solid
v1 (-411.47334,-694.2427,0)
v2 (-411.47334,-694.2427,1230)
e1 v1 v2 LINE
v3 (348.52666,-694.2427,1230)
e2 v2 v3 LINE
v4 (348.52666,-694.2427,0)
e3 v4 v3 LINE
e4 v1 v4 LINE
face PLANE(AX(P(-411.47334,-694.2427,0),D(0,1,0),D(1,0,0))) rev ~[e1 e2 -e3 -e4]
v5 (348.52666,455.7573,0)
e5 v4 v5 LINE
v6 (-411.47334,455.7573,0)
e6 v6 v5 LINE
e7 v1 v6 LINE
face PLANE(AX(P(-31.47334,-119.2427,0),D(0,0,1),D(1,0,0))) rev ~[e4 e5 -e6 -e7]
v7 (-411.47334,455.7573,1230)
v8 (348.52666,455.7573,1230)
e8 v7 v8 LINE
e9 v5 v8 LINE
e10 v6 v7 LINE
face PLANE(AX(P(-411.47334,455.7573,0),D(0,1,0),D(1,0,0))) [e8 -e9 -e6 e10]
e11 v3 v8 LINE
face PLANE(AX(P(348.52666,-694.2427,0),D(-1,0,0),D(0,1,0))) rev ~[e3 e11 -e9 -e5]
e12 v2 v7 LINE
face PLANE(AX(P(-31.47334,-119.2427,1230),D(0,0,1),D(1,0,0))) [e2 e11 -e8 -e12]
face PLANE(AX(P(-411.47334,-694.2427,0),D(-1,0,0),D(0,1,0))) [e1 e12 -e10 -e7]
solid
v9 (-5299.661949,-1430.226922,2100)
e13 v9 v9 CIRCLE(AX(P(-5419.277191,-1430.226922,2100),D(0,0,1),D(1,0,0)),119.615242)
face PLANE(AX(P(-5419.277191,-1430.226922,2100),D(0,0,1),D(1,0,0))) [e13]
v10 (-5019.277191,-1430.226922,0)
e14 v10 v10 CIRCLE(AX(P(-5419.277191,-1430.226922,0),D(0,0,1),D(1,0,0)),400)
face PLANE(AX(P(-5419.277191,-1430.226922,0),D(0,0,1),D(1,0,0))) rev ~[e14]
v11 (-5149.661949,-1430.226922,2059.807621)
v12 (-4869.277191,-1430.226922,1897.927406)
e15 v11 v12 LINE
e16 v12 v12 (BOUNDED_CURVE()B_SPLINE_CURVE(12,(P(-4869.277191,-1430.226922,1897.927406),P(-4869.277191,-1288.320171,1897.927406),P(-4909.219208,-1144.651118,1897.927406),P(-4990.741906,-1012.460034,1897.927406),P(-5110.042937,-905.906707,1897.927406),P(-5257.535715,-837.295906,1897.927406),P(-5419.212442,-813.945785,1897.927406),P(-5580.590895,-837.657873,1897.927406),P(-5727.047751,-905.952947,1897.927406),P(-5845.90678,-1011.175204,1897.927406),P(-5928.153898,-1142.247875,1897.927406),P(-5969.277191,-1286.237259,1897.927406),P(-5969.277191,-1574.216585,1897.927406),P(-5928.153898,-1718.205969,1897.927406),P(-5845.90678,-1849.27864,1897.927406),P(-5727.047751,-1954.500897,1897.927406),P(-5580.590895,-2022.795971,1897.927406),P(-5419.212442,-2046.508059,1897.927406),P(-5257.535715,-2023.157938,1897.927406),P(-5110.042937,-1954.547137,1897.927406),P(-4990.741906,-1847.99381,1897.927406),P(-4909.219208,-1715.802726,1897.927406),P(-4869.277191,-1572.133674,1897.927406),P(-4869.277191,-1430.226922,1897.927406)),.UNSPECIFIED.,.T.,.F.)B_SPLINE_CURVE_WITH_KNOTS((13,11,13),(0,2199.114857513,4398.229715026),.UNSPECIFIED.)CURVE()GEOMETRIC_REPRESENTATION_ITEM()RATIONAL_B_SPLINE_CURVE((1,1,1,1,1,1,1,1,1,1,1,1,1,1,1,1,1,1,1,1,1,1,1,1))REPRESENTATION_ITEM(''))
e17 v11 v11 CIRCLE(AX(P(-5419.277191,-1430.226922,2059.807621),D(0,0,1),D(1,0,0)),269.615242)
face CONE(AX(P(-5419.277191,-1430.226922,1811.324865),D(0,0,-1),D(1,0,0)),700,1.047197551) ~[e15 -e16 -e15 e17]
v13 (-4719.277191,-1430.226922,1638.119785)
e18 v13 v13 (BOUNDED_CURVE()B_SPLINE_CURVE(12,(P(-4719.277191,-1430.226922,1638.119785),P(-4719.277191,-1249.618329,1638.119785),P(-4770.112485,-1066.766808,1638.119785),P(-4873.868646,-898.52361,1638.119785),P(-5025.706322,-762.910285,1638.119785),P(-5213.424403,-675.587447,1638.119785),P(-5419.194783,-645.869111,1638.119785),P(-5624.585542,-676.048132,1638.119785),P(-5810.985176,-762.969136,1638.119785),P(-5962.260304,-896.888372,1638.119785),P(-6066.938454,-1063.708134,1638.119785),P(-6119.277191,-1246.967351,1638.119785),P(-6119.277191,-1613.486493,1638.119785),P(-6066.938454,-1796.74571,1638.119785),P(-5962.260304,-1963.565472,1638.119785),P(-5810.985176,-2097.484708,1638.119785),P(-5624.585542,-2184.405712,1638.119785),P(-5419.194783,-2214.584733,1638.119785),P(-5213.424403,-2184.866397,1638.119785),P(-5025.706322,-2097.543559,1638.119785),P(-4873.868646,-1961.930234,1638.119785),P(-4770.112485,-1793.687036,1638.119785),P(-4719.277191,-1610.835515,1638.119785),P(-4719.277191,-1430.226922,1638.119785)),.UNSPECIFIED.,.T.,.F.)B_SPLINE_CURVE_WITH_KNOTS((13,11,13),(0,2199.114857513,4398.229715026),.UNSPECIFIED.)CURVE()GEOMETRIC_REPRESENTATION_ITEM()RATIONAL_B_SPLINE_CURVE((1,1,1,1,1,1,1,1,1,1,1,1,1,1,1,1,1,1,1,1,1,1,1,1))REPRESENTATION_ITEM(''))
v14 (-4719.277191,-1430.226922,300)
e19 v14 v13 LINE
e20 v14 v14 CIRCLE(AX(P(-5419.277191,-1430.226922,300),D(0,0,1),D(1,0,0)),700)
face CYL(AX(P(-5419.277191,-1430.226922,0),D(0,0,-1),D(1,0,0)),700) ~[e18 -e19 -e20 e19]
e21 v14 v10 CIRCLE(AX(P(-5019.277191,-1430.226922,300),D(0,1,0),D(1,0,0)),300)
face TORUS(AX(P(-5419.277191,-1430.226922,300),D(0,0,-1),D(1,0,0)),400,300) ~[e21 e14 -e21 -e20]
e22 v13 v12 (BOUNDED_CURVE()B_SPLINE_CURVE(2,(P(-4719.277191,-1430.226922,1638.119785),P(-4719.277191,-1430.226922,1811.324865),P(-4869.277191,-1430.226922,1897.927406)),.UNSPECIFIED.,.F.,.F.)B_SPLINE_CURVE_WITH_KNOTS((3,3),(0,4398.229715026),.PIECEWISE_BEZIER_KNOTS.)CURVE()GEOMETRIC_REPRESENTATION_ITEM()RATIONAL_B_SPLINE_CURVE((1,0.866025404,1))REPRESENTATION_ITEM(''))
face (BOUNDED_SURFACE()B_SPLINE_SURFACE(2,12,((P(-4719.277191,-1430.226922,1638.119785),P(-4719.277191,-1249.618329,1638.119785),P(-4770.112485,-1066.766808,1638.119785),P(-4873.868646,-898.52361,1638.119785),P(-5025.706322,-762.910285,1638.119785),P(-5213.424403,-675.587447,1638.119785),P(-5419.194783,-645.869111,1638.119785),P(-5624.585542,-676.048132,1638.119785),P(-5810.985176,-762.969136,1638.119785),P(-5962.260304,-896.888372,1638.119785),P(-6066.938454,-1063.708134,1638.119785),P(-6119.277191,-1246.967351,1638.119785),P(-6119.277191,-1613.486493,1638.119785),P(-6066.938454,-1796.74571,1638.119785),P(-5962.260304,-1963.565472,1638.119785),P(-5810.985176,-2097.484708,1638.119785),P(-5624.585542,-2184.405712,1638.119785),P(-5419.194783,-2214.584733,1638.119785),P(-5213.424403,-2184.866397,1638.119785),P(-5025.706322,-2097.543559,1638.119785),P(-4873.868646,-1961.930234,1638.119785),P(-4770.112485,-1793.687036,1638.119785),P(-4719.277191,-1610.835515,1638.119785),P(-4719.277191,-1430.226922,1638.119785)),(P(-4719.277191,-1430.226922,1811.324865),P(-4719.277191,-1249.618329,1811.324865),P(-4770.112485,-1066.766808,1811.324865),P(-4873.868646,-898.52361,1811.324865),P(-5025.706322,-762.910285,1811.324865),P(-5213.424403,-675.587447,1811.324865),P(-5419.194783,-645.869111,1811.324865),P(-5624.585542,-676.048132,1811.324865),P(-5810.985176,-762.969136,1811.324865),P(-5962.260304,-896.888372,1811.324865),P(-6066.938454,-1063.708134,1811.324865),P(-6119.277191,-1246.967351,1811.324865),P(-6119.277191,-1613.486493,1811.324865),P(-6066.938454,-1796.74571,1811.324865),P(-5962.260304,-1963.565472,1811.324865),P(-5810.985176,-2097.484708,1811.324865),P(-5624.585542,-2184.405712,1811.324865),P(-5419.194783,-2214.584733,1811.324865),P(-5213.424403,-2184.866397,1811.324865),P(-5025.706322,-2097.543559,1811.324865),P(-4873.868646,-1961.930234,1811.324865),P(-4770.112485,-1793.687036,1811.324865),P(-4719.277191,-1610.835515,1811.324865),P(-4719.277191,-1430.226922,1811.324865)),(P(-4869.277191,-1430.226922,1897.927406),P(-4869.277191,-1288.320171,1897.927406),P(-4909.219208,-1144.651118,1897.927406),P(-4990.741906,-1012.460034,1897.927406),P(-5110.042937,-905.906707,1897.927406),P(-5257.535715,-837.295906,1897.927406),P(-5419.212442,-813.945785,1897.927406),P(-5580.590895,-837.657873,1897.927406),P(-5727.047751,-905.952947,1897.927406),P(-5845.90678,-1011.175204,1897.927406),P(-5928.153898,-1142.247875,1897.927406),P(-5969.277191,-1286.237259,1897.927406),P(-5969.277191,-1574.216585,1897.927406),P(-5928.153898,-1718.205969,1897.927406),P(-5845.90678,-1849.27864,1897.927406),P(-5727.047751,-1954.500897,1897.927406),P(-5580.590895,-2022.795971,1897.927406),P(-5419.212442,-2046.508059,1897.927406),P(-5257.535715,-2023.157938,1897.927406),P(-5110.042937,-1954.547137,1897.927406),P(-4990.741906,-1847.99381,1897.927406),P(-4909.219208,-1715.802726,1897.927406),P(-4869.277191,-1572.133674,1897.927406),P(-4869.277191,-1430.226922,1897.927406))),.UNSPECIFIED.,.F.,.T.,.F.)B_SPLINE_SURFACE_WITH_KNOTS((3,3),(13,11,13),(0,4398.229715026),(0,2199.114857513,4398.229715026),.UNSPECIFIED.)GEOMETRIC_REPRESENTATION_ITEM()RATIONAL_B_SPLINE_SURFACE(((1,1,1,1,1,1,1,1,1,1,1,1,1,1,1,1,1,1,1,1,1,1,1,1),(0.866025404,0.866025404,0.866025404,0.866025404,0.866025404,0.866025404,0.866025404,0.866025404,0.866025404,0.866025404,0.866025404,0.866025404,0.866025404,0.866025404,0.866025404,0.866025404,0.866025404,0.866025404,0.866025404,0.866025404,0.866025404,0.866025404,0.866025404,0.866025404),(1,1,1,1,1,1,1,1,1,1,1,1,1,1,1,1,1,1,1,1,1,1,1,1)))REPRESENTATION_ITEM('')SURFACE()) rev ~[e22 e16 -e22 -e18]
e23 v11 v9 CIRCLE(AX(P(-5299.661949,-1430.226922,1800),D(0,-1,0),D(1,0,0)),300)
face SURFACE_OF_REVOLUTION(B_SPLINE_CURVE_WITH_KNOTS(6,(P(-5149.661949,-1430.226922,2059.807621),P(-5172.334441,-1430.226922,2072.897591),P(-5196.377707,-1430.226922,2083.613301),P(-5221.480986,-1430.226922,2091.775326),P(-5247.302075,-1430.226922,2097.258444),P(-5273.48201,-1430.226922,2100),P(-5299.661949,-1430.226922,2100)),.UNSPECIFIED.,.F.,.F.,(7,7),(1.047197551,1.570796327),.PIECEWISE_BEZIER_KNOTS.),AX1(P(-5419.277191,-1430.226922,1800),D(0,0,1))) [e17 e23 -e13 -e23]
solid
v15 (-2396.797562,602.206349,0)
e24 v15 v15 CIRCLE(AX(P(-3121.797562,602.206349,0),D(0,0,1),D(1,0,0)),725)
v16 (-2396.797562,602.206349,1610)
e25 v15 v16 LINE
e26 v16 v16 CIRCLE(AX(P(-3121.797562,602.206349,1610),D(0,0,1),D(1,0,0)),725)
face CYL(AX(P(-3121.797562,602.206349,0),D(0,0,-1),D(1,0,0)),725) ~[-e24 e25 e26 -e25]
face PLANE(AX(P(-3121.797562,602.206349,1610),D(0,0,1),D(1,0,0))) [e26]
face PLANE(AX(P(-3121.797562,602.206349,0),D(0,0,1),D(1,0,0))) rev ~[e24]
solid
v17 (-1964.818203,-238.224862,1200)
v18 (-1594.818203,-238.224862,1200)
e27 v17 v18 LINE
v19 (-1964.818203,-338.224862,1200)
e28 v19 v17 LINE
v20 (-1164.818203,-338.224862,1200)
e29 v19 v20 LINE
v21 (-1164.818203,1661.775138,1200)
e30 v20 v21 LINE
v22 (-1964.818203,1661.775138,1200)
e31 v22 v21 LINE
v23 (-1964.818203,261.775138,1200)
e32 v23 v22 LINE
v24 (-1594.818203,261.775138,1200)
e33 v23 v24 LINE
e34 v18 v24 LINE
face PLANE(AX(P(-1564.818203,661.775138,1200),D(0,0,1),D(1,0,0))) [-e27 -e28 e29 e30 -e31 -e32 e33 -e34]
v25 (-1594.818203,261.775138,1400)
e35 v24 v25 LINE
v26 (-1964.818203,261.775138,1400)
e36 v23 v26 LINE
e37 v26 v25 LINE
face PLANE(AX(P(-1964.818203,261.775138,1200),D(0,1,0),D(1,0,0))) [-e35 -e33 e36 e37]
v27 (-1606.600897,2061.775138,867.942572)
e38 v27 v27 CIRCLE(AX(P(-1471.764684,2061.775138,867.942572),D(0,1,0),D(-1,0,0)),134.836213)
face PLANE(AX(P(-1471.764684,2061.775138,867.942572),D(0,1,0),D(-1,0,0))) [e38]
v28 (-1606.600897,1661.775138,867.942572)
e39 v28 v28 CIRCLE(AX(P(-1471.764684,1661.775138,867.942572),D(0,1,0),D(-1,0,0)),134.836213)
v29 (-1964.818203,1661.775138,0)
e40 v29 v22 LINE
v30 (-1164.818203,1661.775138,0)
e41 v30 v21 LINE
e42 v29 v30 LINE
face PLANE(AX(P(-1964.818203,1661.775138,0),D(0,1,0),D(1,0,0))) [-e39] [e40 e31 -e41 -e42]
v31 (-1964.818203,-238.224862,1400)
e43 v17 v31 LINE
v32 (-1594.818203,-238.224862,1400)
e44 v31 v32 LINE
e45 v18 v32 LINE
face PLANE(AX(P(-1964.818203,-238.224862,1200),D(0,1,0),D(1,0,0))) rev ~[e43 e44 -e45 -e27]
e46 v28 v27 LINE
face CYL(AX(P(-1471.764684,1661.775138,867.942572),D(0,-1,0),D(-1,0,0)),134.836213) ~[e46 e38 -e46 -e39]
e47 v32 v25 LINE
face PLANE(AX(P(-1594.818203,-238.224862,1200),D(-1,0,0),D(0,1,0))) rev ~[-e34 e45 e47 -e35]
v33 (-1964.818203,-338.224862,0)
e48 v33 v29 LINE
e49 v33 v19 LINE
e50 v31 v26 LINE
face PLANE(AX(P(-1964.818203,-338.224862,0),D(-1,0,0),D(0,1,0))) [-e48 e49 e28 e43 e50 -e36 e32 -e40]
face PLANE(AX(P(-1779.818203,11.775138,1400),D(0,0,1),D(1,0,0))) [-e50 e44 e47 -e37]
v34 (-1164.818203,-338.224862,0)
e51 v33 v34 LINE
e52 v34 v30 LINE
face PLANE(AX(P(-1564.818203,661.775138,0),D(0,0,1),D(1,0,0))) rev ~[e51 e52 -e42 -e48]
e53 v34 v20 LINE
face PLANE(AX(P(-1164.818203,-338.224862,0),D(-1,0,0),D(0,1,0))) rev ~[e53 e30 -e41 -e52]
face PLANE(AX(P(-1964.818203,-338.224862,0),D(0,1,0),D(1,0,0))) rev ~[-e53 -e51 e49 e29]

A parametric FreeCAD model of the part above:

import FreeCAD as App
import Part
import Sketcher
Q = App.Units.Quantity


def edges_at(feature, points):
    """Names of the edges that pass closest to the given points."""
    edges = feature.Shape.Edges
    near = lambda p: min(range(len(edges)), key=lambda i: edges[i].distToShape(Part.Vertex(*p))[0])
    return sorted({f"Edge{near(p) + 1}" for p in points})


def add_polygon(sketch, points):
    """Adds a closed chain of lines whose ends are joined by coincident constraints."""
    first, n = sketch.GeometryCount, len(points)
    for a, b in zip(points, points[1:] + points[:1]):
        sketch.addGeometry(Part.LineSegment(App.Vector(*a, 0), App.Vector(*b, 0)), False)
    for i in range(n):
        sketch.addConstraint(Sketcher.Constraint("Coincident", first + i, 2, first + (i + 1) % n, 1))

doc = App.newDocument("Part")
body = doc.addObject("PartDesign::Body", "Body")

# Sketch on XY plane
sketch1 = body.newObject("Sketcher::SketchObject", "Sketch")
sketch1.AttachmentSupport = (doc.getObject("XY_Plane"), [""])
sketch1.MapMode = "FlatFace"
add_polygon(sketch1, [(-411, 456), (-411, -694), (349, -694), (349, 456)])  # lines 0-3
sketch1.addConstraint([
    Sketcher.Constraint("Vertical", 0),
    Sketcher.Constraint("Horizontal", 1),
    Sketcher.Constraint("Vertical", 2),
    Sketcher.Constraint("Horizontal", 3),
    Sketcher.Constraint("DistanceX", 1, 1, 1, 2, Q("760 mm")),
    Sketcher.Constraint("DistanceY", 0, 2, 0, 1, Q("1150 mm")),
    Sketcher.Constraint("DistanceY", 0, 2, -1, 1, Q("694.2427 mm")),
    Sketcher.Constraint("DistanceX", 0, 2, -1, 1, Q("411.47334 mm")),
])
pad1 = body.newObject("PartDesign::Pad", "Pad")
pad1.Profile = sketch1
pad1.Length = 1230
body2 = doc.addObject("PartDesign::Body", "Body001")

# Sketch on XY plane
sketch2 = body2.newObject("Sketcher::SketchObject", "Sketch001")
sketch2.AttachmentSupport = (doc.getObject("XY_Plane001"), [""])
sketch2.MapMode = "FlatFace"
sketch2.addGeometry(Part.Circle(App.Vector(-3122, 602, 0), App.Vector(0, 0, 1), 725), False)
sketch2.addConstraint([
    Sketcher.Constraint("Diameter", 0, Q("1450 mm")),
    Sketcher.Constraint("DistanceX", 0, 3, -1, 1, Q("3121.797562 mm")),
    Sketcher.Constraint("DistanceY", -1, 1, 0, 3, Q("602.206349 mm")),
])
pad2 = body2.newObject("PartDesign::Pad", "Pad001")
pad2.Profile = sketch2
pad2.Length = 1610
body3 = doc.addObject("PartDesign::Body", "Body002")

# Sketch on XY plane
sketch3 = body3.newObject("Sketcher::SketchObject", "Sketch002")
sketch3.AttachmentSupport = (doc.getObject("XY_Plane002"), [""])
sketch3.MapMode = "FlatFace"
add_polygon(sketch3, [(-1965, 1662), (-1965, -338), (-1165, -338), (-1165, 1662)])  # lines 0-3
sketch3.addConstraint([
    Sketcher.Constraint("Vertical", 0),
    Sketcher.Constraint("Horizontal", 1),
    Sketcher.Constraint("Vertical", 2),
    Sketcher.Constraint("Horizontal", 3),
    Sketcher.Constraint("DistanceX", 1, 1, 1, 2, Q("800 mm")),
    Sketcher.Constraint("DistanceY", 0, 2, 0, 1, Q("2000 mm")),
    Sketcher.Constraint("DistanceX", 0, 2, -1, 1, Q("1964.818203 mm")),
    Sketcher.Constraint("DistanceY", 0, 2, -1, 1, Q("338.224862 mm")),
])
pad3 = body3.newObject("PartDesign::Pad", "Pad002")
pad3.Profile = sketch3
pad3.Length = 1200

# Sketch on XY plane
sketch4 = body3.newObject("Sketcher::SketchObject", "Sketch003")
sketch4.AttachmentSupport = (doc.getObject("XY_Plane002"), [""])
sketch4.MapMode = "FlatFace"
sketch4.AttachmentOffset = App.Placement(App.Vector(0, 0, 1200), App.Rotation())
add_polygon(sketch4, [(-1965, 262), (-1965, -238), (-1595, -238), (-1595, 262)])  # lines 0-3
sketch4.addConstraint([
    Sketcher.Constraint("Vertical", 0),
    Sketcher.Constraint("Horizontal", 1),
    Sketcher.Constraint("Vertical", 2),
    Sketcher.Constraint("Horizontal", 3),
    Sketcher.Constraint("DistanceX", 1, 1, 1, 2, Q("370 mm")),
    Sketcher.Constraint("DistanceY", 0, 2, 0, 1, Q("500 mm")),
    Sketcher.Constraint("DistanceX", 0, 2, -1, 1, Q("1964.818203 mm")),
    Sketcher.Constraint("DistanceY", 0, 2, -1, 1, Q("238.224862 mm")),
])
pad4 = body3.newObject("PartDesign::Pad", "Pad003")
pad4.Profile = sketch4
pad4.Length = 200

# Sketch on XZ plane
sketch5 = body3.newObject("Sketcher::SketchObject", "Sketch004")
sketch5.AttachmentSupport = (doc.getObject("XZ_Plane002"), [""])
sketch5.MapMode = "FlatFace"
sketch5.AttachmentOffset = App.Placement(App.Vector(0, 0, -1661.775138), App.Rotation())
sketch5.addGeometry(Part.Circle(App.Vector(-1472, 868, 0), App.Vector(0, 0, 1), 135), False)
sketch5.addConstraint([
    Sketcher.Constraint("Diameter", 0, Q("269.672426 mm")),
    Sketcher.Constraint("DistanceY", -1, 1, 0, 3, Q("867.942572 mm")),
    Sketcher.Constraint("DistanceX", 0, 3, -1, 1, Q("1471.764684 mm")),
])
pad5 = body3.newObject("PartDesign::Pad", "Pad004")
pad5.Profile = sketch5
pad5.Length = 400
pad5.Reversed = True
body4 = doc.addObject("PartDesign::Body", "Body003")

# Sketch on XY plane
sketch6 = body4.newObject("Sketcher::SketchObject", "Sketch005")
sketch6.AttachmentSupport = (doc.getObject("XY_Plane003"), [""])
sketch6.MapMode = "FlatFace"
sketch6.addGeometry(Part.Circle(App.Vector(-5419, -1430, 0), App.Vector(0, 0, 1), 700), False)
sketch6.addConstraint([
    Sketcher.Constraint("Diameter", 0, Q("1400 mm")),
    Sketcher.Constraint("DistanceX", 0, 3, -1, 1, Q("5419.277191 mm")),
    Sketcher.Constraint("DistanceY", 0, 3, -1, 1, Q("1430.226922 mm")),
])
pad6 = body4.newObject("PartDesign::Pad", "Pad005")
pad6.Profile = sketch6
pad6.Length = 2100
doc.recompute()

fillet = body4.newObject("PartDesign::Fillet", "Fillet")
fillet.Base = (pad6, edges_at(pad6, [(-6119.277, -1430.227, 0)]))
fillet.Radius = 300
doc.recompute()

chamfer = body4.newObject("PartDesign::Chamfer", "Chamfer")
chamfer.Base = (fillet, edges_at(fillet, [(-6119.277, -1430.227, 2100)]))
chamfer.ChamferType = "Two distances"
chamfer.Size = 500
chamfer.Size2 = 288.675135
chamfer.FlipDirection = True
doc.recompute()

fillet2 = body4.newObject("PartDesign::Fillet", "Fillet001")
fillet2.Base = (chamfer, edges_at(chamfer, [(-6119.277, -1430.227, 1811.325), (-5619.277, -1430.227, 2100)]))
fillet2.Radius = 300

doc.recompute()
